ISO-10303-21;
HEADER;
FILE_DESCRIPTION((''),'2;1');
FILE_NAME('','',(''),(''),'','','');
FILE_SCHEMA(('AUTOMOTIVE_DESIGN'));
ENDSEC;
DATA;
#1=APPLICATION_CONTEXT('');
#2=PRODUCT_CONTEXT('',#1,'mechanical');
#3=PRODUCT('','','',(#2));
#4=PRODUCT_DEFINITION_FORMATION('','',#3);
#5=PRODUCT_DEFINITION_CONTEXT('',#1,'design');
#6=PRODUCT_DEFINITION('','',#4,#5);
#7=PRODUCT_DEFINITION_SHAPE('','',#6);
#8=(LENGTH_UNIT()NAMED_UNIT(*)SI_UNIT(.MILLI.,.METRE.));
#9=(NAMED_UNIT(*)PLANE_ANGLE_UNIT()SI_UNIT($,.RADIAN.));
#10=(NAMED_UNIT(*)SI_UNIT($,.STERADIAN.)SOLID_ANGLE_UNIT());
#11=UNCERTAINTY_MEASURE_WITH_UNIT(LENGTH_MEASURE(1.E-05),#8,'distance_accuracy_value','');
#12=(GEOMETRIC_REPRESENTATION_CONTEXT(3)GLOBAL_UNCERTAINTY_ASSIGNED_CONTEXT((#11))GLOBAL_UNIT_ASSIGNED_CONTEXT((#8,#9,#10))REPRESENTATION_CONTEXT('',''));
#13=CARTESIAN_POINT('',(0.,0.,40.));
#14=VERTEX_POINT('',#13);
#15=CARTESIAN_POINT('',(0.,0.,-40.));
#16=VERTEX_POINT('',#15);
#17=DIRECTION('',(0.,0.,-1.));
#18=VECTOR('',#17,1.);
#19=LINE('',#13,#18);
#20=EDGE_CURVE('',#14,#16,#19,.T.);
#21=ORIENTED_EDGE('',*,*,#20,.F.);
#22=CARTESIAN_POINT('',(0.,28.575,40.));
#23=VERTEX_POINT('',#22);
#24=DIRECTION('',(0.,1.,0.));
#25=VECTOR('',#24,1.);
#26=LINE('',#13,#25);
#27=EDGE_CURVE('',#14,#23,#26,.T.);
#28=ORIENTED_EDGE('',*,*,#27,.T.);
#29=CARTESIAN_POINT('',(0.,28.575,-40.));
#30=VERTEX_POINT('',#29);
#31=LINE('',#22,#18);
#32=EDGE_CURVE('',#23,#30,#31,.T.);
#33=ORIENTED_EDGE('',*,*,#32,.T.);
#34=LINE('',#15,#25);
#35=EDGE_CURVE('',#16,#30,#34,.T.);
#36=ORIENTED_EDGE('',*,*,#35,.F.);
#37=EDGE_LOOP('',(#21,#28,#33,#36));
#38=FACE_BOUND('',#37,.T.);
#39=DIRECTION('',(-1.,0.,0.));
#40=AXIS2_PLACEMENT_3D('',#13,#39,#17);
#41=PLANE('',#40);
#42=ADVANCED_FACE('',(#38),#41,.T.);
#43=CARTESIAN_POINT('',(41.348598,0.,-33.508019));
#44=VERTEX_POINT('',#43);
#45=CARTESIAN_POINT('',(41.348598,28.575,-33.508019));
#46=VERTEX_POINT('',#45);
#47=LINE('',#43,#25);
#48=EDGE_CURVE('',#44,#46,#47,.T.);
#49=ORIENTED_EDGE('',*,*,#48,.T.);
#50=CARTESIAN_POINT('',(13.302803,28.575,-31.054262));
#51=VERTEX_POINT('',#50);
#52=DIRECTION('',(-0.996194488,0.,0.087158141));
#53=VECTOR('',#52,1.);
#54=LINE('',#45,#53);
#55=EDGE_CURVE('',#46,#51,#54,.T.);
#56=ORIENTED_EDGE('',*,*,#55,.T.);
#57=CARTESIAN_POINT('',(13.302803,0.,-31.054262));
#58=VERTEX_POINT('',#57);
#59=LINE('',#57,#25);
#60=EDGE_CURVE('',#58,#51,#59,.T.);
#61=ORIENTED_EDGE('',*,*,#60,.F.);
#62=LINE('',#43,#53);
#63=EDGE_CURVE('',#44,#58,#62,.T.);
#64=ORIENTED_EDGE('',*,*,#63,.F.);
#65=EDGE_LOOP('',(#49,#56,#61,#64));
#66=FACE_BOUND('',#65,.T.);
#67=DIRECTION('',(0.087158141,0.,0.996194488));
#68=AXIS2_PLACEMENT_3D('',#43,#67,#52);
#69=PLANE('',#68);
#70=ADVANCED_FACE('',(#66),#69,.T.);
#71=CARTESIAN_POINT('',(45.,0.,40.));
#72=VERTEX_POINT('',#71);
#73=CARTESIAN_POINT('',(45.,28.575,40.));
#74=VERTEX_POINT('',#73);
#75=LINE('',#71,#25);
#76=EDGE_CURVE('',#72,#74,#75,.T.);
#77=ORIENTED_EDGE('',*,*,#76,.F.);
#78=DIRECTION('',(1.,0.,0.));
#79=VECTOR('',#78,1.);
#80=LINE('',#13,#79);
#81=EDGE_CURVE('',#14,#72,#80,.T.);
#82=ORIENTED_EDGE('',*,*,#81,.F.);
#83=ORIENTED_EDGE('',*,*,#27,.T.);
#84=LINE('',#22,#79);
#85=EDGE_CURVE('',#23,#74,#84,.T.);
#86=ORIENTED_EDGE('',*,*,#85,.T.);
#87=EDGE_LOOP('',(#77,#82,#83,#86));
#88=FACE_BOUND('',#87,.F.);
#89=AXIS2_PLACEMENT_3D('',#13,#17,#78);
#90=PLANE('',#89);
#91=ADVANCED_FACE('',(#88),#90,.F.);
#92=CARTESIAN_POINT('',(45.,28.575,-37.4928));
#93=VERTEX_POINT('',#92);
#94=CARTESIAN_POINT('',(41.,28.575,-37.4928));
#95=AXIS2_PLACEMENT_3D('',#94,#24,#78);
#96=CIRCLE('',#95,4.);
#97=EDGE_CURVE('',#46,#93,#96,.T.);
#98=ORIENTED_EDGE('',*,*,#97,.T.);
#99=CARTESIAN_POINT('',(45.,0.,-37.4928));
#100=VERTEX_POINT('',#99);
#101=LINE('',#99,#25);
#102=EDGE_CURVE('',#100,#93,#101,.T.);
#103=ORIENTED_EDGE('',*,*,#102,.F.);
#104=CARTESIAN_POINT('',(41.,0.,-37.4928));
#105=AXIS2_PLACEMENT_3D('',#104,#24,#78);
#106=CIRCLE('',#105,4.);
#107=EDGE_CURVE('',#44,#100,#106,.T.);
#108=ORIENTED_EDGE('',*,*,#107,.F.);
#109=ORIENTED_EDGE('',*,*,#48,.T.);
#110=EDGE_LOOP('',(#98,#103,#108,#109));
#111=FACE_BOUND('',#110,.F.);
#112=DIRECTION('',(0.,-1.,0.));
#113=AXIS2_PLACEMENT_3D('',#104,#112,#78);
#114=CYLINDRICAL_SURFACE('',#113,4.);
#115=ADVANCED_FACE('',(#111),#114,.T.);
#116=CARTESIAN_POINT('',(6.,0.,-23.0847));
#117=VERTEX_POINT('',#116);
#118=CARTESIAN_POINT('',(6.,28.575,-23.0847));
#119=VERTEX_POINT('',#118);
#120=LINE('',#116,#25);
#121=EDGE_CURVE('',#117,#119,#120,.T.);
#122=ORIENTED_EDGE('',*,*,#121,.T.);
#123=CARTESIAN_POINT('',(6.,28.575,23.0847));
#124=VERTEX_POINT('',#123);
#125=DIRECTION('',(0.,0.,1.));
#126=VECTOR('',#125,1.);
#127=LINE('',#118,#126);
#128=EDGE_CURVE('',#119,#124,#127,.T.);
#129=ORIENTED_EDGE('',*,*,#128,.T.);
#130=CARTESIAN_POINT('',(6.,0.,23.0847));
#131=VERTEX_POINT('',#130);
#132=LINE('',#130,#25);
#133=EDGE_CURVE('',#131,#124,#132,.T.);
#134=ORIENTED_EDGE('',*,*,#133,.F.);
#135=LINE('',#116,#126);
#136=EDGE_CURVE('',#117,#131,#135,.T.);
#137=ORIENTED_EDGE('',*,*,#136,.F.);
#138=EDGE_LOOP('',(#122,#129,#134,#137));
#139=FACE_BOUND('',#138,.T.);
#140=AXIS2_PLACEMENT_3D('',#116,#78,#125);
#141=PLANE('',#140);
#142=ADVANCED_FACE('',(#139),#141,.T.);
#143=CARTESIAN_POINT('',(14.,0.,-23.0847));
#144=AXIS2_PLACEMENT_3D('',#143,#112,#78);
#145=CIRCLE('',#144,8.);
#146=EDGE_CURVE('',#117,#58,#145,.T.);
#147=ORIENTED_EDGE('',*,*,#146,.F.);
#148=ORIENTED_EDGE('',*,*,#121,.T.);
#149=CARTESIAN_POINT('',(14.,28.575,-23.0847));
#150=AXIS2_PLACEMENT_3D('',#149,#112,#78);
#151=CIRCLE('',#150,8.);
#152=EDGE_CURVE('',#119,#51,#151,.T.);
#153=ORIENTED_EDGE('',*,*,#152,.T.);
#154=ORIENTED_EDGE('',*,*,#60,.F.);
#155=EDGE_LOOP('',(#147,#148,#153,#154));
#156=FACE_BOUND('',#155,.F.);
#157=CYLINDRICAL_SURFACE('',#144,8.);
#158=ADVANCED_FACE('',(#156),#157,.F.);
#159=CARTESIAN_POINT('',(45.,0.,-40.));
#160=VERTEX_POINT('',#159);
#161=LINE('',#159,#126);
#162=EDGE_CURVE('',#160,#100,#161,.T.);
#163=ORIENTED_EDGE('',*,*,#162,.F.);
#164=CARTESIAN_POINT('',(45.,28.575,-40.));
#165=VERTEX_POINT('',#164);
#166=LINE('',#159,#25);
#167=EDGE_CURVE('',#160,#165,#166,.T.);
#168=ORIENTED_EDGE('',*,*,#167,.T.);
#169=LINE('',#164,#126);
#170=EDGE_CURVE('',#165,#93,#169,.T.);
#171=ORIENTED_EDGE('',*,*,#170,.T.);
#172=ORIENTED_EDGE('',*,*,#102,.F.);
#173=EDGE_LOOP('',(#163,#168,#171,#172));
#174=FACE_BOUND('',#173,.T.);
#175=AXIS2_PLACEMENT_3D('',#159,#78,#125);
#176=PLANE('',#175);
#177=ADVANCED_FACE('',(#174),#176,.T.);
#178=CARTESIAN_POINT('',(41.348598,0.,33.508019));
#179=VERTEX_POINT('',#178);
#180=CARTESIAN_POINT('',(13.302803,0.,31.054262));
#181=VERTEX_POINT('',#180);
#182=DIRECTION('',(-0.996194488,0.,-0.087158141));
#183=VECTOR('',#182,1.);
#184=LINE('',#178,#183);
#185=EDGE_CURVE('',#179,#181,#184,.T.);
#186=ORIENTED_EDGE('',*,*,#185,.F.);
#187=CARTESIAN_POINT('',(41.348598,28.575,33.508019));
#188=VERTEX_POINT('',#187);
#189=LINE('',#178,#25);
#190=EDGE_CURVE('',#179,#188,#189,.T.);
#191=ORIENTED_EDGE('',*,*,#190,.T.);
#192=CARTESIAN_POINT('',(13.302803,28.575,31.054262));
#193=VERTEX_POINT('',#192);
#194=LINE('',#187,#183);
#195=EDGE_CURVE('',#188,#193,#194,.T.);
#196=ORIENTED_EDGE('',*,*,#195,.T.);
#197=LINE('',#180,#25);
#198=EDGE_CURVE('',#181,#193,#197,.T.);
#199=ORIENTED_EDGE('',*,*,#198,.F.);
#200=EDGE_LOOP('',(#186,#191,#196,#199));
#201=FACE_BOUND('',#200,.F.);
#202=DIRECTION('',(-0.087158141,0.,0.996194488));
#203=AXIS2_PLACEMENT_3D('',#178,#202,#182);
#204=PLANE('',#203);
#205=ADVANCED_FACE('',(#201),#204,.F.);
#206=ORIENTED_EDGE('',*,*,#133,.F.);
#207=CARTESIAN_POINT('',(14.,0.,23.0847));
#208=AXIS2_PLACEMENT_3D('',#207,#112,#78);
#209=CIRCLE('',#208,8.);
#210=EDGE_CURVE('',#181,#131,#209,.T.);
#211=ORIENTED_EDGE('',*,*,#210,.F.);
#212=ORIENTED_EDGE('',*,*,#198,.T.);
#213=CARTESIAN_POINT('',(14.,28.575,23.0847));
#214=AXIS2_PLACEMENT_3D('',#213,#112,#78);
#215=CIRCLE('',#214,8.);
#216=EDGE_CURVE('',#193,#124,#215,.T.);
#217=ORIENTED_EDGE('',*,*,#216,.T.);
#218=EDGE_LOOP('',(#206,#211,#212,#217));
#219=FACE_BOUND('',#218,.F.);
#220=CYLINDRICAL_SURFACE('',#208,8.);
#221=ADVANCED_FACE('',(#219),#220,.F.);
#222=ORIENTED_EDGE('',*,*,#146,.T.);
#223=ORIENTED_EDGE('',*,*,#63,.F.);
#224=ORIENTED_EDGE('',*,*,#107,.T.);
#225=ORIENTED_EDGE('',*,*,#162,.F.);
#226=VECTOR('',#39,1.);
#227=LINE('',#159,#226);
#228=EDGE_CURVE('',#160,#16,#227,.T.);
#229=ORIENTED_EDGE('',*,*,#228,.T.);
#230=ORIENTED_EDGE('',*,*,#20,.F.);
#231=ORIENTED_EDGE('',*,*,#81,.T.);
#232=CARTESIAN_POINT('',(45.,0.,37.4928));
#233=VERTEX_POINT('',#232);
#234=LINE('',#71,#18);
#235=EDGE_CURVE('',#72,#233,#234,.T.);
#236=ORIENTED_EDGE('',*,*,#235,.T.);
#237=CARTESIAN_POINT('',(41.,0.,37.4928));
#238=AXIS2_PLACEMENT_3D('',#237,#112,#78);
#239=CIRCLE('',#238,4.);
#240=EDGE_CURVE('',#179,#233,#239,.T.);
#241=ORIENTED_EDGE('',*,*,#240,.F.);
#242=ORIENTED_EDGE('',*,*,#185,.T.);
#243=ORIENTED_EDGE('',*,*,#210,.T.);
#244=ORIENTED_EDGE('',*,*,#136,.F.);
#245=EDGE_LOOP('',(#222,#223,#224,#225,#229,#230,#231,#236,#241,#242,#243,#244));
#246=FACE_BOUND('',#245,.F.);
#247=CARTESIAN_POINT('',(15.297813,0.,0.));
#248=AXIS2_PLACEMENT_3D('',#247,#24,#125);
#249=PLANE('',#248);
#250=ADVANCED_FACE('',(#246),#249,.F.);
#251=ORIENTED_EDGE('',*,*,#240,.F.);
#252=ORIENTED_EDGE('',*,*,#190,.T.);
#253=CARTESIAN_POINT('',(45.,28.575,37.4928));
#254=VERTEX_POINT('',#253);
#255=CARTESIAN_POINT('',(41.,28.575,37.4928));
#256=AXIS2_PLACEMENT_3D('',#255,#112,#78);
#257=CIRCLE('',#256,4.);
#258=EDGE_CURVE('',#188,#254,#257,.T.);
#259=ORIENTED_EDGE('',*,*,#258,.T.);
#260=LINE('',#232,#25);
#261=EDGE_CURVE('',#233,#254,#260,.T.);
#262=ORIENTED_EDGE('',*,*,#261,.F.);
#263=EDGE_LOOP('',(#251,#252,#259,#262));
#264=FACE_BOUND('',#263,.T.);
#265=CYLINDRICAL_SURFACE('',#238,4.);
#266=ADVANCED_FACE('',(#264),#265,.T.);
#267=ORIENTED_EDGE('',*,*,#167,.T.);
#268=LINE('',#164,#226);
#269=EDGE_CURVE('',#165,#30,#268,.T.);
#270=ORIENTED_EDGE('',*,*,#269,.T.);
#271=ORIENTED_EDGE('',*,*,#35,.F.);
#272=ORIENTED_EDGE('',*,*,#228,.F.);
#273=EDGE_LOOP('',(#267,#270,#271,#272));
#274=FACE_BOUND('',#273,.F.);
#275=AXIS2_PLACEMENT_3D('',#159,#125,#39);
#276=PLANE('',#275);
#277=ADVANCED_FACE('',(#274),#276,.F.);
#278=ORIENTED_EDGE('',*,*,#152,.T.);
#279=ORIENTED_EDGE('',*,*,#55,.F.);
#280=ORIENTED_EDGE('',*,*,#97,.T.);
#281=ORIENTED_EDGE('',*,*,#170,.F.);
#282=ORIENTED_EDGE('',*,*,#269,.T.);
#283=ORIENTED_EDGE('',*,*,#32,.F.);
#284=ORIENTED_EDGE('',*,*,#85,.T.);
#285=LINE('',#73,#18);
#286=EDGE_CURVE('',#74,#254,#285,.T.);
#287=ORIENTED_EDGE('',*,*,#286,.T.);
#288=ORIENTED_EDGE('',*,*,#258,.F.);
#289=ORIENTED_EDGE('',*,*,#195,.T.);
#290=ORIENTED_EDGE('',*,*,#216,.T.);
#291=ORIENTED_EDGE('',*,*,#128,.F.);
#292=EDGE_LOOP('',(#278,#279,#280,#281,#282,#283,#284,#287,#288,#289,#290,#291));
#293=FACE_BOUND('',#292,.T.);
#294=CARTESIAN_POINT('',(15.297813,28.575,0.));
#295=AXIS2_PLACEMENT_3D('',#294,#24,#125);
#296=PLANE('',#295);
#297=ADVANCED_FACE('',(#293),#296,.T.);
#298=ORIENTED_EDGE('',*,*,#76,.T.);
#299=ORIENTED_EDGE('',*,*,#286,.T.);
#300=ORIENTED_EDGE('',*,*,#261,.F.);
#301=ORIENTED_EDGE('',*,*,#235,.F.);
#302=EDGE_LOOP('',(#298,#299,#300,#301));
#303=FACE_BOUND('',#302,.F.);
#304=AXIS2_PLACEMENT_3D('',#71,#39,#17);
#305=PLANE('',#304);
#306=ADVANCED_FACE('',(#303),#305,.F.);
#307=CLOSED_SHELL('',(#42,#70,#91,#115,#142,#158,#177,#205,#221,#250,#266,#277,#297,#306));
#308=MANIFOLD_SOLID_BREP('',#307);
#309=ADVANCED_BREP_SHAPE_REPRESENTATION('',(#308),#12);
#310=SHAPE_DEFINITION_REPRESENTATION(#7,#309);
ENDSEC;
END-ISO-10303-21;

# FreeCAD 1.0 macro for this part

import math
import FreeCAD as App
import Part
import Sketcher
Q = App.Units.Quantity

doc = App.newDocument("Part")
body = doc.addObject("PartDesign::Body", "Body")

# Sketch on XZ plane
sketch1 = body.newObject("Sketcher::SketchObject", "Sketch")
sketch1.AttachmentSupport = (doc.getObject("XZ_Plane"), [""])
sketch1.MapMode = "FlatFace"
sketch1.addGeometry([
    Part.LineSegment(App.Vector(0, -40, 0), App.Vector(45, -40, 0)),  # 0
    Part.LineSegment(App.Vector(45, -40, 0), App.Vector(45, -37.5, 0)),  # 1
    Part.ArcOfCircle(Part.Circle(App.Vector(41, -37.5, 0), App.Vector(0, 0, 1), 4), math.radians(0), math.radians(85)),  # 2
    Part.LineSegment(App.Vector(41.3, -33.5, 0), App.Vector(13.3, -31.1, 0)),  # 3
    Part.ArcOfCircle(Part.Circle(App.Vector(14, -23.1, 0), App.Vector(0, 0, 1), 8), math.radians(180), math.radians(265)),  # 4
    Part.LineSegment(App.Vector(6, -23.1, 0), App.Vector(6, 23.1, 0)),  # 5
    Part.ArcOfCircle(Part.Circle(App.Vector(14, 23.1, 0), App.Vector(0, 0, 1), 8), math.radians(95), math.radians(180)),  # 6
    Part.LineSegment(App.Vector(13.3, 31.1, 0), App.Vector(41.3, 33.5, 0)),  # 7
    Part.ArcOfCircle(Part.Circle(App.Vector(41, 37.5, 0), App.Vector(0, 0, 1), 4), math.radians(-85), math.radians(0)),  # 8
    Part.LineSegment(App.Vector(45, 37.5, 0), App.Vector(45, 40, 0)),  # 9
    Part.LineSegment(App.Vector(45, 40, 0), App.Vector(0, 40, 0)),  # 10
    Part.LineSegment(App.Vector(0, 40, 0), App.Vector(0, -40, 0)),  # 11
], False)
sketch1.addConstraint([
    Sketcher.Constraint("Coincident", 0, 2, 1, 1),
    Sketcher.Constraint("Tangent", 1, 2, 2, 1),
    Sketcher.Constraint("Tangent", 2, 2, 3, 1),
    Sketcher.Constraint("Tangent", 3, 2, 4, 2),
    Sketcher.Constraint("Tangent", 4, 1, 5, 1),
    Sketcher.Constraint("Tangent", 5, 2, 6, 2),
    Sketcher.Constraint("Tangent", 6, 1, 7, 1),
    Sketcher.Constraint("Tangent", 7, 2, 8, 1),
    Sketcher.Constraint("Tangent", 8, 2, 9, 1),
    Sketcher.Constraint("Coincident", 9, 2, 10, 1),
    Sketcher.Constraint("Coincident", 10, 2, 11, 1),
    Sketcher.Constraint("Coincident", 11, 2, 0, 1),
    Sketcher.Constraint("Horizontal", 0),
    Sketcher.Constraint("Vertical", 1),
    Sketcher.Constraint("Vertical", 5),
    Sketcher.Constraint("Vertical", 9),
    Sketcher.Constraint("Horizontal", 10),
    Sketcher.Constraint("Vertical", 11),
    Sketcher.Constraint("Equal", 4, 6),
    Sketcher.Constraint("Equal", 2, 8),
    Sketcher.Constraint("Symmetric", 10, 2, 11, 2, -1, 1),
    Sketcher.Constraint("Symmetric", 2, 3, 8, 3, -1),
    Sketcher.Constraint("Vertical", 3, 2, 6, 1),
    Sketcher.Constraint("Radius", 2, 4.0),
    Sketcher.Constraint("Radius", 4, 8.0),
    Sketcher.Constraint("DistanceX", 0, 1, 0, 2, 45.0),
    Sketcher.Constraint("DistanceY", 11, 2, 11, 1, 80.0),
    Sketcher.Constraint("Angle", 3, Q("175 deg")),
    Sketcher.Constraint("DistanceX", -1, 1, 4, 3, 14.0),
    Sketcher.Constraint("DistanceY", 1, 1, 1, 2, 2.5072),
])
pad1 = body.newObject("PartDesign::Pad", "Pad")
pad1.Profile = sketch1
pad1.Length = 28.575
pad1.Reversed = True

doc.recompute()
